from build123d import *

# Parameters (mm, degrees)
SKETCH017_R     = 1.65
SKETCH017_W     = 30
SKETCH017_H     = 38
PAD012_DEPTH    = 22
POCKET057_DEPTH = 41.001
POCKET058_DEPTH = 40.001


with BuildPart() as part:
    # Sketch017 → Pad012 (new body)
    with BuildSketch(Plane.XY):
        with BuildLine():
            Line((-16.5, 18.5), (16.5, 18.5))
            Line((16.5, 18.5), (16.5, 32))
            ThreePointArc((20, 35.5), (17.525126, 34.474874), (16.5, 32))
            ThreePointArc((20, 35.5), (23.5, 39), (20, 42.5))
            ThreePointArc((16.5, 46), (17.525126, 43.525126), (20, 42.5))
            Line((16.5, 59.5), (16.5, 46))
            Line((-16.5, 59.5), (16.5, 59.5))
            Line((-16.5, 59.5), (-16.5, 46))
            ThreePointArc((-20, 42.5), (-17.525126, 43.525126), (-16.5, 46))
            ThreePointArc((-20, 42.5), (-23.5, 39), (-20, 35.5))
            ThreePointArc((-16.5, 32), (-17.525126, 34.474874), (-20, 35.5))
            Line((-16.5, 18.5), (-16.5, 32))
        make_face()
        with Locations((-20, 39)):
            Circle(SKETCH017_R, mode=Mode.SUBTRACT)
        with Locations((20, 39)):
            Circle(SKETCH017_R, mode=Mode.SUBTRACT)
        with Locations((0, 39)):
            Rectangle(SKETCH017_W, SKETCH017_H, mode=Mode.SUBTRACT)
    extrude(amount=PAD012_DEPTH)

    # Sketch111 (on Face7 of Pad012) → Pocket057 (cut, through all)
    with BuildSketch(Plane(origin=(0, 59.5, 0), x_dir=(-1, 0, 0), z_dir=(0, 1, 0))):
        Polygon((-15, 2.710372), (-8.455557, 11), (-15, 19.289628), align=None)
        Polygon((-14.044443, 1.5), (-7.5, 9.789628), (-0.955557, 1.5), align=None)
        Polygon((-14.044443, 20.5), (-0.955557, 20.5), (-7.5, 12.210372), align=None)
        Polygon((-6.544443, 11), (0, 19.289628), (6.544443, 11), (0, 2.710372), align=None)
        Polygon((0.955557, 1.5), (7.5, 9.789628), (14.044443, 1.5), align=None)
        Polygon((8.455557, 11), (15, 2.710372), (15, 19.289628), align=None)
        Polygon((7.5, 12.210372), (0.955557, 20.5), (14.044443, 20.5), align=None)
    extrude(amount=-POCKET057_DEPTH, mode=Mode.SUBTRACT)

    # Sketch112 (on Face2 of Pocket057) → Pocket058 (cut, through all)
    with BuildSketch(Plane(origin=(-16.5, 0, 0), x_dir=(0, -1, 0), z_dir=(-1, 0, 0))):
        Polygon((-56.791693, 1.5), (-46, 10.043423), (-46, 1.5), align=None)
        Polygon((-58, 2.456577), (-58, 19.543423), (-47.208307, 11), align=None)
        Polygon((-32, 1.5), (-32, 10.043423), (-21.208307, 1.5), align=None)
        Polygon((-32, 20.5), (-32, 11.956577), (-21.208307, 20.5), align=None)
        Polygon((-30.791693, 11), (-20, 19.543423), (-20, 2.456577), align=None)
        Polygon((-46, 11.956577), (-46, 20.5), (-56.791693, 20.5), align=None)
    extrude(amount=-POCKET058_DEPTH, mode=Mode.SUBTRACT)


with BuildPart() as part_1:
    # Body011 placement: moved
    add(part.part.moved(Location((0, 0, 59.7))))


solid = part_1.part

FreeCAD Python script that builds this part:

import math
import FreeCAD as App
import Part
import Sketcher

V = App.Vector
Q = App.Units.Quantity


def add_polygon(sketch, points):
    """Adds a closed chain of lines whose ends are joined by coincident constraints."""
    first, n = sketch.GeometryCount, len(points)
    for a, b in zip(points, points[1:] + points[:1]):
        sketch.addGeometry(Part.LineSegment(App.Vector(*a, 0), App.Vector(*b, 0)), False)
    for i in range(n):
        sketch.addConstraint(Sketcher.Constraint("Coincident", first + i, 2, first + (i + 1) % n, 1))

doc = App.newDocument("Part")
params = doc.addObject("Spreadsheet::Sheet", "Params")
for row, (alias, value) in enumerate([
    ("sketch1_diameter", "3.3 mm"),
    ("sketch1_radius", "3.499999 mm"),
    ("sketch1_width", "33 mm"),
    ("sketch1_width2", "30 mm"),
    ("sketch1_height", "38 mm"),
    ("pad1_length", "22 mm"),
], start=1):
    params.set(f"A{row}", alias)
    params.set(f"B{row}", "=" + value)
    params.setAlias(f"B{row}", alias)

body = doc.addObject("PartDesign::Body", "Body")

# Sketch on XY plane
sketch1 = body.newObject("Sketcher::SketchObject", "Sketch")
sketch1.AttachmentSupport = (doc.getObject("XY_Plane"), [""])
sketch1.MapMode = "FlatFace"
sketch1.addGeometry(Part.LineSegment(V(-16.5, 18.5, 0), V(16.5, 18.5, 0)), False)  # 0
sketch1.addGeometry(Part.LineSegment(V(16.5, 18.5, 0), V(16.5, 32, 0)), False)  # 1
sketch1.addGeometry(Part.ArcOfCircle(Part.Circle(V(20, 32, 0), V(0, 0, 1), 3.5), math.radians(90), math.radians(180)), False)  # 2
sketch1.addGeometry(Part.ArcOfCircle(Part.Circle(V(20, 39, 0), V(0, 0, 1), 3.5), math.radians(-90), math.radians(90)), False)  # 3
sketch1.addGeometry(Part.ArcOfCircle(Part.Circle(V(20, 46, 0), V(0, 0, 1), 3.5), math.radians(180), math.radians(270)), False)  # 4
sketch1.addGeometry(Part.LineSegment(V(16.5, 46, 0), V(16.5, 59.5, 0)), False)  # 5
sketch1.addGeometry(Part.LineSegment(V(16.5, 59.5, 0), V(-16.5, 59.5, 0)), False)  # 6
sketch1.addGeometry(Part.LineSegment(V(-16.5, 59.5, 0), V(-16.5, 46, 0)), False)  # 7
sketch1.addGeometry(Part.ArcOfCircle(Part.Circle(V(-20, 46, 0), V(0, 0, 1), 3.5), math.radians(-90), math.radians(0)), False)  # 8
sketch1.addGeometry(Part.ArcOfCircle(Part.Circle(V(-20, 39, 0), V(0, 0, 1), 3.5), math.radians(90), math.radians(270)), False)  # 9
sketch1.addGeometry(Part.ArcOfCircle(Part.Circle(V(-20, 32, 0), V(0, 0, 1), 3.5), math.radians(0), math.radians(90)), False)  # 10
sketch1.addGeometry(Part.LineSegment(V(-16.5, 32, 0), V(-16.5, 18.5, 0)), False)  # 11
sketch1.addGeometry(Part.Circle(V(-20, 39, 0), V(0, 0, 1), 1.6), False)  # 12
add_polygon(sketch1, [(15, 20), (-15, 20), (-15, 58), (15, 58)])  # lines 13-16
sketch1.addGeometry(Part.Circle(V(20, 39, 0), V(0, 0, 1), 1.6), False)  # 17
sketch1.addConstraint(Sketcher.Constraint("Coincident", 0, 2, 1, 1))
sketch1.addConstraint(Sketcher.Constraint("Tangent", 1, 2, 2, 2))
sketch1.addConstraint(Sketcher.Constraint("Tangent", 2, 1, 3, 1))
sketch1.addConstraint(Sketcher.Constraint("Tangent", 3, 2, 4, 2))
sketch1.addConstraint(Sketcher.Constraint("Tangent", 4, 1, 5, 1))
sketch1.addConstraint(Sketcher.Constraint("Coincident", 5, 2, 6, 1))
sketch1.addConstraint(Sketcher.Constraint("Coincident", 6, 2, 7, 1))
sketch1.addConstraint(Sketcher.Constraint("Tangent", 7, 2, 8, 2))
sketch1.addConstraint(Sketcher.Constraint("Tangent", 8, 1, 9, 1))
sketch1.addConstraint(Sketcher.Constraint("Tangent", 9, 2, 10, 2))
sketch1.addConstraint(Sketcher.Constraint("Tangent", 10, 1, 11, 1))
sketch1.addConstraint(Sketcher.Constraint("Coincident", 11, 2, 0, 1))
sketch1.addConstraint(Sketcher.Constraint("Horizontal", 0))
sketch1.addConstraint(Sketcher.Constraint("Vertical", 1))
sketch1.addConstraint(Sketcher.Constraint("Vertical", 5))
sketch1.addConstraint(Sketcher.Constraint("Horizontal", 6))
sketch1.addConstraint(Sketcher.Constraint("Vertical", 7))
sketch1.addConstraint(Sketcher.Constraint("Vertical", 11))
sketch1.addConstraint(Sketcher.Constraint("Horizontal", 13))
sketch1.addConstraint(Sketcher.Constraint("Vertical", 14))
sketch1.addConstraint(Sketcher.Constraint("Horizontal", 15))
sketch1.addConstraint(Sketcher.Constraint("Vertical", 16))
sketch1.addConstraint(Sketcher.Constraint("Coincident", 12, 3, 9, 3))
sketch1.addConstraint(Sketcher.Constraint("Coincident", 17, 3, 3, 3))
sketch1.addConstraint(Sketcher.Constraint("Equal", 2, 3))
sketch1.addConstraint(Sketcher.Constraint("Equal", 3, 4))
sketch1.addConstraint(Sketcher.Constraint("Equal", 4, 8))
sketch1.addConstraint(Sketcher.Constraint("Equal", 8, 9))
sketch1.addConstraint(Sketcher.Constraint("Equal", 9, 10))
sketch1.addConstraint(Sketcher.Constraint("Equal", 12, 17))
sketch1.addConstraint(Sketcher.Constraint("Symmetric", 4, 3, 8, 3, -2))
sketch1.addConstraint(Sketcher.Constraint("Vertical", 2, 3, 3, 3))
sketch1.addConstraint(Sketcher.Constraint("Vertical", 3, 3, 4, 3))
sketch1.addConstraint(Sketcher.Constraint("Vertical", 8, 3, 9, 3))
sketch1.addConstraint(Sketcher.Constraint("Vertical", 9, 3, 10, 3))
sketch1.addConstraint(Sketcher.Constraint("Equal", 1, 5))
sketch1.addConstraint(Sketcher.Constraint("Diameter", 12, Q("3.3 mm")))
sketch1.addConstraint(Sketcher.Constraint("Radius", 2, Q("3.499999 mm")))
sketch1.addConstraint(Sketcher.Constraint("DistanceX", 0, 1, 0, 2, Q("33 mm")))
sketch1.addConstraint(Sketcher.Constraint("DistanceX", 13, 2, 13, 1, Q("30 mm")))
sketch1.addConstraint(Sketcher.Constraint("DistanceY", 14, 1, 14, 2, Q("38 mm")))
sketch1.addConstraint(Sketcher.Constraint("DistanceY", 1, 1, 1, 2, Q("13.5 mm")))
sketch1.addConstraint(Sketcher.Constraint("DistanceY", -1, 1, 2, 3, Q("32.000001 mm")))
sketch1.addConstraint(Sketcher.Constraint("DistanceX", 13, 2, -1, 1, Q("15 mm")))
sketch1.addConstraint(Sketcher.Constraint("DistanceY", -1, 1, 13, 2, Q("20 mm")))
sketch1.setExpression("Constraints[40]", "Params.sketch1_diameter")
sketch1.setExpression("Constraints[41]", "Params.sketch1_radius")
sketch1.setExpression("Constraints[42]", "Params.sketch1_width")
sketch1.setExpression("Constraints[43]", "Params.sketch1_width2")
sketch1.setExpression("Constraints[44]", "Params.sketch1_height")
pad1 = body.newObject("PartDesign::Pad", "Pad")
pad1.Profile = sketch1
pad1.setExpression("Length", "Params.pad1_length")

# Sketch on XZ plane
sketch2 = body.newObject("Sketcher::SketchObject", "Sketch001")
sketch2.AttachmentSupport = (doc.getObject("XZ_Plane"), [""])
sketch2.MapMode = "FlatFace"
sketch2.AttachmentOffset = App.Placement(V(0, 0, -59.5), App.Rotation())
add_polygon(sketch2, [(15, 3), (8, 11), (15, 19)])  # lines 0-2
add_polygon(sketch2, [(8, 10), (14, 2), (1, 2)])  # lines 3-5
add_polygon(sketch2, [(1, 20), (14, 20), (8, 12)])  # lines 6-8
add_polygon(sketch2, [(0, 19), (7, 11), (0, 3), (-7, 11)])  # lines 9-12
add_polygon(sketch2, [(-8, 10), (-1, 2), (-14, 2)])  # lines 13-15
add_polygon(sketch2, [(-8, 11), (-15, 3), (-15, 19)])  # lines 16-18
add_polygon(sketch2, [(-1, 20), (-8, 12), (-14, 20)])  # lines 19-21
sketch2.addConstraint(Sketcher.Constraint("Vertical", 2))
sketch2.addConstraint(Sketcher.Constraint("Horizontal", 4))
sketch2.addConstraint(Sketcher.Constraint("Horizontal", 6))
sketch2.addConstraint(Sketcher.Constraint("Horizontal", 14))
sketch2.addConstraint(Sketcher.Constraint("Vertical", 17))
sketch2.addConstraint(Sketcher.Constraint("Horizontal", 21))
sketch2.addConstraint(Sketcher.Constraint("Symmetric", 9, 2, 11, 2, -2))
sketch2.addConstraint(Sketcher.Constraint("Symmetric", 4, 2, 13, 2, -2))
sketch2.addConstraint(Sketcher.Constraint("Symmetric", 5, 2, 15, 2, -2))
sketch2.addConstraint(Sketcher.Constraint("Symmetric", 2, 2, 16, 2, -2))
sketch2.addConstraint(Sketcher.Constraint("Symmetric", 0, 2, 18, 2, -2))
sketch2.addConstraint(Sketcher.Constraint("Symmetric", 7, 2, 19, 2, -2))
sketch2.addConstraint(Sketcher.Constraint("Symmetric", 6, 2, 20, 2, -2))
sketch2.addConstraint(Sketcher.Constraint("PointOnObject", 10, 2, -2))
sketch2.addConstraint(Sketcher.Constraint("PointOnObject", 12, 2, -2))
sketch2.addConstraint(Sketcher.Constraint("Parallel", 0, 3))
sketch2.addConstraint(Sketcher.Constraint("Parallel", 1, 5))
sketch2.addConstraint(Sketcher.Constraint("Parallel", 5, 7))
sketch2.addConstraint(Sketcher.Constraint("Parallel", 3, 8))
sketch2.addConstraint(Sketcher.Constraint("Parallel", 8, 9))
sketch2.addConstraint(Sketcher.Constraint("Parallel", 7, 10))
sketch2.addConstraint(Sketcher.Constraint("Parallel", 9, 11))
sketch2.addConstraint(Sketcher.Constraint("Parallel", 12, 15))
sketch2.addConstraint(Sketcher.Constraint("Parallel", 13, 18))
sketch2.addConstraint(Sketcher.Constraint("Parallel", 16, 19))
sketch2.addConstraint(Sketcher.Constraint("Horizontal", 0, 2, 9, 2))
sketch2.addConstraint(Sketcher.Constraint("Horizontal", 2, 2, 10, 2))
sketch2.addConstraint(Sketcher.Constraint("Vertical", 3, 2, 6, 2))
sketch2.addConstraint(Sketcher.Constraint("Vertical", 5, 2, 7, 2))
sketch2.addConstraint(Sketcher.Constraint("Equal", 1, 3))
sketch2.addConstraint(Sketcher.Constraint("DistanceY", -1, 1, 0, 2, Q("11 mm")))
sketch2.addConstraint(Sketcher.Constraint("DistanceX", -1, 1, 1, 2, Q("15 mm")))
sketch2.addConstraint(Sketcher.Constraint("DistanceY", 3, 2, 6, 2, Q("19 mm")))
sketch2.addConstraint(Sketcher.Constraint("DistanceX", 14, 2, 4, 2, Q("15 mm")))
sketch2.addConstraint(Sketcher.Constraint("DistanceY", -1, 1, 3, 2, Q("1.5 mm")))
sketch2.addConstraint(Sketcher.Constraint("DistanceX", 4, 2, 4, 1, Q("13.088886 mm")))
sketch2.addConstraint(Sketcher.Constraint("DistanceY", 2, 2, 2, 1, Q("16.579256 mm")))
pocket1 = body.newObject("PartDesign::Pocket", "Pocket")
pocket1.Profile = sketch2
pocket1.Type = "ThroughAll"
pocket1.Reversed = True

# Sketch on YZ plane
sketch3 = body.newObject("Sketcher::SketchObject", "Sketch002")
sketch3.AttachmentSupport = (doc.getObject("YZ_Plane"), [""])
sketch3.MapMode = "FlatFace"
sketch3.AttachmentOffset = App.Placement(V(0, 0, -16.5), App.Rotation())
add_polygon(sketch3, [(46, 10), (57, 2), (46, 2)])  # lines 0-2
add_polygon(sketch3, [(58, 20), (58, 2), (47, 11)])  # lines 3-5
add_polygon(sketch3, [(32, 10), (32, 2), (21, 2)])  # lines 6-8
add_polygon(sketch3, [(32, 20), (32, 12), (21, 20)])  # lines 9-11
add_polygon(sketch3, [(20, 20), (31, 11), (20, 2)])  # lines 12-14
add_polygon(sketch3, [(46, 12), (46, 20), (57, 20)])  # lines 15-17
sketch3.addConstraint(Sketcher.Constraint("Horizontal", 1))
sketch3.addConstraint(Sketcher.Constraint("Vertical", 2))
sketch3.addConstraint(Sketcher.Constraint("Vertical", 3))
sketch3.addConstraint(Sketcher.Constraint("Vertical", 6))
sketch3.addConstraint(Sketcher.Constraint("Horizontal", 7))
sketch3.addConstraint(Sketcher.Constraint("Vertical", 9))
sketch3.addConstraint(Sketcher.Constraint("Horizontal", 11))
sketch3.addConstraint(Sketcher.Constraint("Vertical", 14))
sketch3.addConstraint(Sketcher.Constraint("Vertical", 15))
sketch3.addConstraint(Sketcher.Constraint("Horizontal", 16))
sketch3.addConstraint(Sketcher.Constraint("Parallel", 0, 4))
sketch3.addConstraint(Sketcher.Constraint("Parallel", 5, 8))
sketch3.addConstraint(Sketcher.Constraint("Parallel", 4, 10))
sketch3.addConstraint(Sketcher.Constraint("Parallel", 10, 12))
sketch3.addConstraint(Sketcher.Constraint("Parallel", 8, 13))
sketch3.addConstraint(Sketcher.Constraint("Parallel", 13, 17))
sketch3.addConstraint(Sketcher.Constraint("Horizontal", 1, 2, 6, 2))
sketch3.addConstraint(Sketcher.Constraint("Horizontal", 2, 2, 8, 2))
sketch3.addConstraint(Sketcher.Constraint("Horizontal", 4, 2, 12, 2))
sketch3.addConstraint(Sketcher.Constraint("Horizontal", 3, 2, 13, 2))
sketch3.addConstraint(Sketcher.Constraint("Horizontal", 5, 2, 14, 2))
sketch3.addConstraint(Sketcher.Constraint("Horizontal", 11, 2, 15, 2))
sketch3.addConstraint(Sketcher.Constraint("Horizontal", 9, 2, 17, 2))
sketch3.addConstraint(Sketcher.Constraint("Vertical", 8, 2, 9, 2))
sketch3.addConstraint(Sketcher.Constraint("Vertical", 7, 2, 10, 2))
sketch3.addConstraint(Sketcher.Constraint("Vertical", 2, 2, 15, 2))
sketch3.addConstraint(Sketcher.Constraint("Equal", 0, 4))
sketch3.addConstraint(Sketcher.Constraint("DistanceX", -1, 1, 1, 2, Q("46 mm")))
sketch3.addConstraint(Sketcher.Constraint("DistanceX", -1, 1, 3, 2, Q("58 mm")))
sketch3.addConstraint(Sketcher.Constraint("DistanceY", -1, 1, 4, 2, Q("11 mm")))
sketch3.addConstraint(Sketcher.Constraint("DistanceX", -1, 1, 6, 2, Q("32 mm")))
sketch3.addConstraint(Sketcher.Constraint("DistanceX", -1, 1, 13, 2, Q("20 mm")))
sketch3.addConstraint(Sketcher.Constraint("DistanceY", 7, 2, 10, 2, Q("19 mm")))
sketch3.addConstraint(Sketcher.Constraint("DistanceY", -1, 1, 0, 2, Q("1.5 mm")))
sketch3.addConstraint(Sketcher.Constraint("Distance", 0, Q("13.76411 mm")))
sketch3.addConstraint(Sketcher.Constraint("DistanceX", 1, 2, 1, 1, Q("10.791693 mm")))
pocket2 = body.newObject("PartDesign::Pocket", "Pocket001")
pocket2.Profile = sketch3
pocket2.Type = "ThroughAll"
pocket2.Reversed = True
body2 = doc.addObject("PartDesign::Body", "Body001")
doc.recompute()

body.Placement = App.Placement(V(0, 0, 59.7), App.Rotation(V(0, 0, 1), 0))
boolean = body2.newObject("PartDesign::Boolean", "Boolean")
boolean.Type = "Fuse"
boolean.addObjects([body])

doc.recompute()
